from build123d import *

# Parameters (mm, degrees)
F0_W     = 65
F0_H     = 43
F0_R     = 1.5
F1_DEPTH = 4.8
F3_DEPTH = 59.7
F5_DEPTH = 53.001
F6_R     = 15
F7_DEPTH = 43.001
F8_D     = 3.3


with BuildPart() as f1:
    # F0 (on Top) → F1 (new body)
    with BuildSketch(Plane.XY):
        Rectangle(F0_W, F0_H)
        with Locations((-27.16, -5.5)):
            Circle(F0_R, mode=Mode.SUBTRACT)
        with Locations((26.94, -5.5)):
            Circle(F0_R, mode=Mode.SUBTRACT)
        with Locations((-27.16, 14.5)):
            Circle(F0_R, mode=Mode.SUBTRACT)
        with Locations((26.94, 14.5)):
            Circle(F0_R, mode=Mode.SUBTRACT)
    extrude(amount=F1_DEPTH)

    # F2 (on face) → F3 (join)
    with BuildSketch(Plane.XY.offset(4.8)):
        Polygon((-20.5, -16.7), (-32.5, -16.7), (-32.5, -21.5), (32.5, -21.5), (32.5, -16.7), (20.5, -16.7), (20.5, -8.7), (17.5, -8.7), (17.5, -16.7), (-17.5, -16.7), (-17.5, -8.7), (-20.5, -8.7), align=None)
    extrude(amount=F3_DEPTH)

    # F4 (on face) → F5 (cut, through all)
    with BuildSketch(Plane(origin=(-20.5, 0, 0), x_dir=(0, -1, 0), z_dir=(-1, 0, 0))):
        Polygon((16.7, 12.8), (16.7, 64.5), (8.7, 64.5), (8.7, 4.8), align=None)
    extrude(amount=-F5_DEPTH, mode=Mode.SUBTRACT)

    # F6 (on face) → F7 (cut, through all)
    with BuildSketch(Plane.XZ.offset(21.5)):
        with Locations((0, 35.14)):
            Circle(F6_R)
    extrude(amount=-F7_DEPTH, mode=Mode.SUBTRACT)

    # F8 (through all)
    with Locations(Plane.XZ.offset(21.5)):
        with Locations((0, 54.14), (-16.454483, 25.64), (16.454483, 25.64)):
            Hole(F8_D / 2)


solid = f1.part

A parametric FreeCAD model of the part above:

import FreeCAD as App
import Part
import Sketcher
from FreeCAD import Vector
Q = App.Units.Quantity


def add_polygon(sketch, points):
    """Adds a closed chain of lines whose ends are joined by coincident constraints."""
    first, n = sketch.GeometryCount, len(points)
    for a, b in zip(points, points[1:] + points[:1]):
        sketch.addGeometry(Part.LineSegment(App.Vector(*a, 0), App.Vector(*b, 0)), False)
    for i in range(n):
        sketch.addConstraint(Sketcher.Constraint("Coincident", first + i, 2, first + (i + 1) % n, 1))

doc = App.newDocument("Part")
body = doc.addObject("PartDesign::Body", "Body")

sketch1 = body.newObject("Sketcher::SketchObject", "Sketch")
sketch1.AttachmentSupport = (doc.getObject("XY_Plane"), [""])
sketch1.MapMode = "FlatFace"
add_polygon(sketch1, [(-32.5, 21.5), (-32.5, -21.5), (32.5, -21.5), (32.5, 21.5)])
sketch1.addGeometry(Part.Circle(Vector(-27.2, -5.5, 0), Vector(0, 0, 1), 1.5), False)
sketch1.addGeometry(Part.Circle(Vector(26.9, -5.5, 0), Vector(0, 0, 1), 1.5), False)
sketch1.addGeometry(Part.Circle(Vector(-27.2, 14.5, 0), Vector(0, 0, 1), 1.5), False)
sketch1.addGeometry(Part.Circle(Vector(26.9, 14.5, 0), Vector(0, 0, 1), 1.5), False)
sketch1.addConstraint([
    Sketcher.Constraint("Vertical", 0),
    Sketcher.Constraint("Horizontal", 1),
    Sketcher.Constraint("Vertical", 2),
    Sketcher.Constraint("Horizontal", 3),
    Sketcher.Constraint("Equal", 4, 5),
    Sketcher.Constraint("Equal", 5, 6),
    Sketcher.Constraint("Equal", 6, 7),
    Sketcher.Constraint("Symmetric", 0, 2, 2, 2, -1, 1),
    Sketcher.Constraint("Horizontal", 4, 3, 5, 3),
    Sketcher.Constraint("Horizontal", 6, 3, 7, 3),
    Sketcher.Constraint("Vertical", 4, 3, 6, 3),
    Sketcher.Constraint("Vertical", 5, 3, 7, 3),
    Sketcher.Constraint("Diameter", 4, Q("3 mm")),
    Sketcher.Constraint("DistanceX", 1, 1, 1, 2, Q("65 mm")),
    Sketcher.Constraint("DistanceY", 0, 2, 0, 1, Q("43 mm")),
    Sketcher.Constraint("DistanceY", 4, 3, 6, 3, Q("20 mm")),
    Sketcher.Constraint("DistanceY", 0, 2, 4, 3, Q("16 mm")),
    Sketcher.Constraint("DistanceX", 4, 3, 5, 3, Q("54.1 mm")),
    Sketcher.Constraint("DistanceX", 4, 3, -1, 1, Q("27.16 mm")),
])
pad1 = body.newObject("PartDesign::Pad", "Pad")
pad1.Profile = sketch1
pad1.Length = 4.8

sketch2 = body.newObject("Sketcher::SketchObject", "Sketch001")
sketch2.AttachmentSupport = (doc.getObject("XY_Plane"), [""])
sketch2.MapMode = "FlatFace"
sketch2.AttachmentOffset = App.Placement(Vector(0, 0, 4.8), App.Rotation())
add_polygon(sketch2, [(-20.5, -16.7), (-32.5, -16.7), (-32.5, -21.5), (32.5, -21.5), (32.5, -16.7), (20.5, -16.7), (20.5, -8.7), (17.5, -8.7), (17.5, -16.7), (-17.5, -16.7), (-17.5, -8.7), (-20.5, -8.7)])
sketch2.addConstraint([
    Sketcher.Constraint("Horizontal", 0),
    Sketcher.Constraint("Vertical", 1),
    Sketcher.Constraint("Horizontal", 2),
    Sketcher.Constraint("Vertical", 3),
    Sketcher.Constraint("Horizontal", 4),
    Sketcher.Constraint("Vertical", 5),
    Sketcher.Constraint("Horizontal", 6),
    Sketcher.Constraint("Vertical", 7),
    Sketcher.Constraint("Horizontal", 8),
    Sketcher.Constraint("Vertical", 9),
    Sketcher.Constraint("Horizontal", 10),
    Sketcher.Constraint("Vertical", 11),
    Sketcher.Constraint("Symmetric", 0, 2, 3, 2, -2),
    Sketcher.Constraint("Symmetric", 6, 2, 9, 2, -2),
    Sketcher.Constraint("Horizontal", 4, 2, 7, 2),
    Sketcher.Constraint("Equal", 0, 4),
    Sketcher.Constraint("DistanceX", 0, 2, 0, 1, Q("12 mm")),
    Sketcher.Constraint("DistanceX", 2, 1, 2, 2, Q("65 mm")),
    Sketcher.Constraint("DistanceX", 6, 2, 6, 1, Q("3 mm")),
    Sketcher.Constraint("DistanceY", 5, 1, 5, 2, Q("8 mm")),
    Sketcher.Constraint("DistanceY", 1, 2, 1, 1, Q("4.8 mm")),
    Sketcher.Constraint("DistanceY", 0, 2, -1, 1, Q("16.7 mm")),
])
pad2 = body.newObject("PartDesign::Pad", "Pad001")
pad2.Profile = sketch2
pad2.Length = 59.7

sketch3 = body.newObject("Sketcher::SketchObject", "Sketch002")
sketch3.AttachmentSupport = (doc.getObject("YZ_Plane"), [""])
sketch3.MapMode = "FlatFace"
sketch3.AttachmentOffset = App.Placement(Vector(0, 0, -20.5), App.Rotation())
add_polygon(sketch3, [(-17, 13), (-17, 64), (-9, 64), (-9, 5)])
sketch3.addConstraint([
    Sketcher.Constraint("Vertical", 0),
    Sketcher.Constraint("Horizontal", 1),
    Sketcher.Constraint("Vertical", 2),
    Sketcher.Constraint("DistanceX", 1, 1, 1, 2, Q("8 mm")),
    Sketcher.Constraint("Angle", 3, Q("135 deg")),
    Sketcher.Constraint("DistanceY", 0, 1, 0, 2, Q("51.7 mm")),
    Sketcher.Constraint("DistanceX", 0, 2, -1, 1, Q("16.7 mm")),
    Sketcher.Constraint("DistanceY", -1, 1, 0, 2, Q("64.5 mm")),
])
pocket1 = body.newObject("PartDesign::Pocket", "Pocket")
pocket1.Profile = sketch3
pocket1.Type = "ThroughAll"
pocket1.Reversed = True

sketch4 = body.newObject("Sketcher::SketchObject", "Sketch003")
sketch4.AttachmentSupport = (doc.getObject("XZ_Plane"), [""])
sketch4.MapMode = "FlatFace"
sketch4.AttachmentOffset = App.Placement(Vector(0, 0, 21.5), App.Rotation())
sketch4.addGeometry(Part.Circle(Vector(0, 35, 0), Vector(0, 0, 1), 15), False)
sketch4.addConstraint([
    Sketcher.Constraint("PointOnObject", 0, 3, -2),
    Sketcher.Constraint("Diameter", 0, Q("30 mm")),
    Sketcher.Constraint("DistanceY", -1, 1, 0, 3, Q("35.14 mm")),
])
pocket2 = body.newObject("PartDesign::Pocket", "Pocket001")
pocket2.Profile = sketch4
pocket2.Type = "ThroughAll"

sketch5 = body.newObject("Sketcher::SketchObject", "Sketch004")
sketch5.AttachmentSupport = (doc.getObject("XZ_Plane"), [""])
sketch5.MapMode = "FlatFace"
sketch5.AttachmentOffset = App.Placement(Vector(0, 0, 21.5), App.Rotation())
sketch5.addGeometry([
    Part.Circle(Vector(0, 54.1, 0), Vector(0, 0, 1), 1.6),
    Part.Circle(Vector(-16.5, 25.6, 0), Vector(0, 0, 1), 1.6),
    Part.Circle(Vector(16.5, 25.6, 0), Vector(0, 0, 1), 1.6),
], False)
sketch5.addConstraint([
    Sketcher.Constraint("Equal", 0, 1),
    Sketcher.Constraint("Equal", 1, 2),
    Sketcher.Constraint("Symmetric", 1, 3, 2, 3, -2),
    Sketcher.Constraint("PointOnObject", 0, 3, -2),
    Sketcher.Constraint("Diameter", 0, Q("3.3 mm")),
    Sketcher.Constraint("DistanceY", 1, 3, 0, 3, Q("28.5 mm")),
    Sketcher.Constraint("DistanceY", -1, 1, 0, 3, Q("54.14 mm")),
    Sketcher.Constraint("DistanceX", 1, 3, -1, 1, Q("16.454483 mm")),
])
doc.recompute()
hole = body.newObject("PartDesign::Hole", "Hole")
hole.Profile = sketch5
hole.ThreadType = "None"
hole.Diameter = 3.3
hole.DepthType = "ThroughAll"

doc.recompute()
